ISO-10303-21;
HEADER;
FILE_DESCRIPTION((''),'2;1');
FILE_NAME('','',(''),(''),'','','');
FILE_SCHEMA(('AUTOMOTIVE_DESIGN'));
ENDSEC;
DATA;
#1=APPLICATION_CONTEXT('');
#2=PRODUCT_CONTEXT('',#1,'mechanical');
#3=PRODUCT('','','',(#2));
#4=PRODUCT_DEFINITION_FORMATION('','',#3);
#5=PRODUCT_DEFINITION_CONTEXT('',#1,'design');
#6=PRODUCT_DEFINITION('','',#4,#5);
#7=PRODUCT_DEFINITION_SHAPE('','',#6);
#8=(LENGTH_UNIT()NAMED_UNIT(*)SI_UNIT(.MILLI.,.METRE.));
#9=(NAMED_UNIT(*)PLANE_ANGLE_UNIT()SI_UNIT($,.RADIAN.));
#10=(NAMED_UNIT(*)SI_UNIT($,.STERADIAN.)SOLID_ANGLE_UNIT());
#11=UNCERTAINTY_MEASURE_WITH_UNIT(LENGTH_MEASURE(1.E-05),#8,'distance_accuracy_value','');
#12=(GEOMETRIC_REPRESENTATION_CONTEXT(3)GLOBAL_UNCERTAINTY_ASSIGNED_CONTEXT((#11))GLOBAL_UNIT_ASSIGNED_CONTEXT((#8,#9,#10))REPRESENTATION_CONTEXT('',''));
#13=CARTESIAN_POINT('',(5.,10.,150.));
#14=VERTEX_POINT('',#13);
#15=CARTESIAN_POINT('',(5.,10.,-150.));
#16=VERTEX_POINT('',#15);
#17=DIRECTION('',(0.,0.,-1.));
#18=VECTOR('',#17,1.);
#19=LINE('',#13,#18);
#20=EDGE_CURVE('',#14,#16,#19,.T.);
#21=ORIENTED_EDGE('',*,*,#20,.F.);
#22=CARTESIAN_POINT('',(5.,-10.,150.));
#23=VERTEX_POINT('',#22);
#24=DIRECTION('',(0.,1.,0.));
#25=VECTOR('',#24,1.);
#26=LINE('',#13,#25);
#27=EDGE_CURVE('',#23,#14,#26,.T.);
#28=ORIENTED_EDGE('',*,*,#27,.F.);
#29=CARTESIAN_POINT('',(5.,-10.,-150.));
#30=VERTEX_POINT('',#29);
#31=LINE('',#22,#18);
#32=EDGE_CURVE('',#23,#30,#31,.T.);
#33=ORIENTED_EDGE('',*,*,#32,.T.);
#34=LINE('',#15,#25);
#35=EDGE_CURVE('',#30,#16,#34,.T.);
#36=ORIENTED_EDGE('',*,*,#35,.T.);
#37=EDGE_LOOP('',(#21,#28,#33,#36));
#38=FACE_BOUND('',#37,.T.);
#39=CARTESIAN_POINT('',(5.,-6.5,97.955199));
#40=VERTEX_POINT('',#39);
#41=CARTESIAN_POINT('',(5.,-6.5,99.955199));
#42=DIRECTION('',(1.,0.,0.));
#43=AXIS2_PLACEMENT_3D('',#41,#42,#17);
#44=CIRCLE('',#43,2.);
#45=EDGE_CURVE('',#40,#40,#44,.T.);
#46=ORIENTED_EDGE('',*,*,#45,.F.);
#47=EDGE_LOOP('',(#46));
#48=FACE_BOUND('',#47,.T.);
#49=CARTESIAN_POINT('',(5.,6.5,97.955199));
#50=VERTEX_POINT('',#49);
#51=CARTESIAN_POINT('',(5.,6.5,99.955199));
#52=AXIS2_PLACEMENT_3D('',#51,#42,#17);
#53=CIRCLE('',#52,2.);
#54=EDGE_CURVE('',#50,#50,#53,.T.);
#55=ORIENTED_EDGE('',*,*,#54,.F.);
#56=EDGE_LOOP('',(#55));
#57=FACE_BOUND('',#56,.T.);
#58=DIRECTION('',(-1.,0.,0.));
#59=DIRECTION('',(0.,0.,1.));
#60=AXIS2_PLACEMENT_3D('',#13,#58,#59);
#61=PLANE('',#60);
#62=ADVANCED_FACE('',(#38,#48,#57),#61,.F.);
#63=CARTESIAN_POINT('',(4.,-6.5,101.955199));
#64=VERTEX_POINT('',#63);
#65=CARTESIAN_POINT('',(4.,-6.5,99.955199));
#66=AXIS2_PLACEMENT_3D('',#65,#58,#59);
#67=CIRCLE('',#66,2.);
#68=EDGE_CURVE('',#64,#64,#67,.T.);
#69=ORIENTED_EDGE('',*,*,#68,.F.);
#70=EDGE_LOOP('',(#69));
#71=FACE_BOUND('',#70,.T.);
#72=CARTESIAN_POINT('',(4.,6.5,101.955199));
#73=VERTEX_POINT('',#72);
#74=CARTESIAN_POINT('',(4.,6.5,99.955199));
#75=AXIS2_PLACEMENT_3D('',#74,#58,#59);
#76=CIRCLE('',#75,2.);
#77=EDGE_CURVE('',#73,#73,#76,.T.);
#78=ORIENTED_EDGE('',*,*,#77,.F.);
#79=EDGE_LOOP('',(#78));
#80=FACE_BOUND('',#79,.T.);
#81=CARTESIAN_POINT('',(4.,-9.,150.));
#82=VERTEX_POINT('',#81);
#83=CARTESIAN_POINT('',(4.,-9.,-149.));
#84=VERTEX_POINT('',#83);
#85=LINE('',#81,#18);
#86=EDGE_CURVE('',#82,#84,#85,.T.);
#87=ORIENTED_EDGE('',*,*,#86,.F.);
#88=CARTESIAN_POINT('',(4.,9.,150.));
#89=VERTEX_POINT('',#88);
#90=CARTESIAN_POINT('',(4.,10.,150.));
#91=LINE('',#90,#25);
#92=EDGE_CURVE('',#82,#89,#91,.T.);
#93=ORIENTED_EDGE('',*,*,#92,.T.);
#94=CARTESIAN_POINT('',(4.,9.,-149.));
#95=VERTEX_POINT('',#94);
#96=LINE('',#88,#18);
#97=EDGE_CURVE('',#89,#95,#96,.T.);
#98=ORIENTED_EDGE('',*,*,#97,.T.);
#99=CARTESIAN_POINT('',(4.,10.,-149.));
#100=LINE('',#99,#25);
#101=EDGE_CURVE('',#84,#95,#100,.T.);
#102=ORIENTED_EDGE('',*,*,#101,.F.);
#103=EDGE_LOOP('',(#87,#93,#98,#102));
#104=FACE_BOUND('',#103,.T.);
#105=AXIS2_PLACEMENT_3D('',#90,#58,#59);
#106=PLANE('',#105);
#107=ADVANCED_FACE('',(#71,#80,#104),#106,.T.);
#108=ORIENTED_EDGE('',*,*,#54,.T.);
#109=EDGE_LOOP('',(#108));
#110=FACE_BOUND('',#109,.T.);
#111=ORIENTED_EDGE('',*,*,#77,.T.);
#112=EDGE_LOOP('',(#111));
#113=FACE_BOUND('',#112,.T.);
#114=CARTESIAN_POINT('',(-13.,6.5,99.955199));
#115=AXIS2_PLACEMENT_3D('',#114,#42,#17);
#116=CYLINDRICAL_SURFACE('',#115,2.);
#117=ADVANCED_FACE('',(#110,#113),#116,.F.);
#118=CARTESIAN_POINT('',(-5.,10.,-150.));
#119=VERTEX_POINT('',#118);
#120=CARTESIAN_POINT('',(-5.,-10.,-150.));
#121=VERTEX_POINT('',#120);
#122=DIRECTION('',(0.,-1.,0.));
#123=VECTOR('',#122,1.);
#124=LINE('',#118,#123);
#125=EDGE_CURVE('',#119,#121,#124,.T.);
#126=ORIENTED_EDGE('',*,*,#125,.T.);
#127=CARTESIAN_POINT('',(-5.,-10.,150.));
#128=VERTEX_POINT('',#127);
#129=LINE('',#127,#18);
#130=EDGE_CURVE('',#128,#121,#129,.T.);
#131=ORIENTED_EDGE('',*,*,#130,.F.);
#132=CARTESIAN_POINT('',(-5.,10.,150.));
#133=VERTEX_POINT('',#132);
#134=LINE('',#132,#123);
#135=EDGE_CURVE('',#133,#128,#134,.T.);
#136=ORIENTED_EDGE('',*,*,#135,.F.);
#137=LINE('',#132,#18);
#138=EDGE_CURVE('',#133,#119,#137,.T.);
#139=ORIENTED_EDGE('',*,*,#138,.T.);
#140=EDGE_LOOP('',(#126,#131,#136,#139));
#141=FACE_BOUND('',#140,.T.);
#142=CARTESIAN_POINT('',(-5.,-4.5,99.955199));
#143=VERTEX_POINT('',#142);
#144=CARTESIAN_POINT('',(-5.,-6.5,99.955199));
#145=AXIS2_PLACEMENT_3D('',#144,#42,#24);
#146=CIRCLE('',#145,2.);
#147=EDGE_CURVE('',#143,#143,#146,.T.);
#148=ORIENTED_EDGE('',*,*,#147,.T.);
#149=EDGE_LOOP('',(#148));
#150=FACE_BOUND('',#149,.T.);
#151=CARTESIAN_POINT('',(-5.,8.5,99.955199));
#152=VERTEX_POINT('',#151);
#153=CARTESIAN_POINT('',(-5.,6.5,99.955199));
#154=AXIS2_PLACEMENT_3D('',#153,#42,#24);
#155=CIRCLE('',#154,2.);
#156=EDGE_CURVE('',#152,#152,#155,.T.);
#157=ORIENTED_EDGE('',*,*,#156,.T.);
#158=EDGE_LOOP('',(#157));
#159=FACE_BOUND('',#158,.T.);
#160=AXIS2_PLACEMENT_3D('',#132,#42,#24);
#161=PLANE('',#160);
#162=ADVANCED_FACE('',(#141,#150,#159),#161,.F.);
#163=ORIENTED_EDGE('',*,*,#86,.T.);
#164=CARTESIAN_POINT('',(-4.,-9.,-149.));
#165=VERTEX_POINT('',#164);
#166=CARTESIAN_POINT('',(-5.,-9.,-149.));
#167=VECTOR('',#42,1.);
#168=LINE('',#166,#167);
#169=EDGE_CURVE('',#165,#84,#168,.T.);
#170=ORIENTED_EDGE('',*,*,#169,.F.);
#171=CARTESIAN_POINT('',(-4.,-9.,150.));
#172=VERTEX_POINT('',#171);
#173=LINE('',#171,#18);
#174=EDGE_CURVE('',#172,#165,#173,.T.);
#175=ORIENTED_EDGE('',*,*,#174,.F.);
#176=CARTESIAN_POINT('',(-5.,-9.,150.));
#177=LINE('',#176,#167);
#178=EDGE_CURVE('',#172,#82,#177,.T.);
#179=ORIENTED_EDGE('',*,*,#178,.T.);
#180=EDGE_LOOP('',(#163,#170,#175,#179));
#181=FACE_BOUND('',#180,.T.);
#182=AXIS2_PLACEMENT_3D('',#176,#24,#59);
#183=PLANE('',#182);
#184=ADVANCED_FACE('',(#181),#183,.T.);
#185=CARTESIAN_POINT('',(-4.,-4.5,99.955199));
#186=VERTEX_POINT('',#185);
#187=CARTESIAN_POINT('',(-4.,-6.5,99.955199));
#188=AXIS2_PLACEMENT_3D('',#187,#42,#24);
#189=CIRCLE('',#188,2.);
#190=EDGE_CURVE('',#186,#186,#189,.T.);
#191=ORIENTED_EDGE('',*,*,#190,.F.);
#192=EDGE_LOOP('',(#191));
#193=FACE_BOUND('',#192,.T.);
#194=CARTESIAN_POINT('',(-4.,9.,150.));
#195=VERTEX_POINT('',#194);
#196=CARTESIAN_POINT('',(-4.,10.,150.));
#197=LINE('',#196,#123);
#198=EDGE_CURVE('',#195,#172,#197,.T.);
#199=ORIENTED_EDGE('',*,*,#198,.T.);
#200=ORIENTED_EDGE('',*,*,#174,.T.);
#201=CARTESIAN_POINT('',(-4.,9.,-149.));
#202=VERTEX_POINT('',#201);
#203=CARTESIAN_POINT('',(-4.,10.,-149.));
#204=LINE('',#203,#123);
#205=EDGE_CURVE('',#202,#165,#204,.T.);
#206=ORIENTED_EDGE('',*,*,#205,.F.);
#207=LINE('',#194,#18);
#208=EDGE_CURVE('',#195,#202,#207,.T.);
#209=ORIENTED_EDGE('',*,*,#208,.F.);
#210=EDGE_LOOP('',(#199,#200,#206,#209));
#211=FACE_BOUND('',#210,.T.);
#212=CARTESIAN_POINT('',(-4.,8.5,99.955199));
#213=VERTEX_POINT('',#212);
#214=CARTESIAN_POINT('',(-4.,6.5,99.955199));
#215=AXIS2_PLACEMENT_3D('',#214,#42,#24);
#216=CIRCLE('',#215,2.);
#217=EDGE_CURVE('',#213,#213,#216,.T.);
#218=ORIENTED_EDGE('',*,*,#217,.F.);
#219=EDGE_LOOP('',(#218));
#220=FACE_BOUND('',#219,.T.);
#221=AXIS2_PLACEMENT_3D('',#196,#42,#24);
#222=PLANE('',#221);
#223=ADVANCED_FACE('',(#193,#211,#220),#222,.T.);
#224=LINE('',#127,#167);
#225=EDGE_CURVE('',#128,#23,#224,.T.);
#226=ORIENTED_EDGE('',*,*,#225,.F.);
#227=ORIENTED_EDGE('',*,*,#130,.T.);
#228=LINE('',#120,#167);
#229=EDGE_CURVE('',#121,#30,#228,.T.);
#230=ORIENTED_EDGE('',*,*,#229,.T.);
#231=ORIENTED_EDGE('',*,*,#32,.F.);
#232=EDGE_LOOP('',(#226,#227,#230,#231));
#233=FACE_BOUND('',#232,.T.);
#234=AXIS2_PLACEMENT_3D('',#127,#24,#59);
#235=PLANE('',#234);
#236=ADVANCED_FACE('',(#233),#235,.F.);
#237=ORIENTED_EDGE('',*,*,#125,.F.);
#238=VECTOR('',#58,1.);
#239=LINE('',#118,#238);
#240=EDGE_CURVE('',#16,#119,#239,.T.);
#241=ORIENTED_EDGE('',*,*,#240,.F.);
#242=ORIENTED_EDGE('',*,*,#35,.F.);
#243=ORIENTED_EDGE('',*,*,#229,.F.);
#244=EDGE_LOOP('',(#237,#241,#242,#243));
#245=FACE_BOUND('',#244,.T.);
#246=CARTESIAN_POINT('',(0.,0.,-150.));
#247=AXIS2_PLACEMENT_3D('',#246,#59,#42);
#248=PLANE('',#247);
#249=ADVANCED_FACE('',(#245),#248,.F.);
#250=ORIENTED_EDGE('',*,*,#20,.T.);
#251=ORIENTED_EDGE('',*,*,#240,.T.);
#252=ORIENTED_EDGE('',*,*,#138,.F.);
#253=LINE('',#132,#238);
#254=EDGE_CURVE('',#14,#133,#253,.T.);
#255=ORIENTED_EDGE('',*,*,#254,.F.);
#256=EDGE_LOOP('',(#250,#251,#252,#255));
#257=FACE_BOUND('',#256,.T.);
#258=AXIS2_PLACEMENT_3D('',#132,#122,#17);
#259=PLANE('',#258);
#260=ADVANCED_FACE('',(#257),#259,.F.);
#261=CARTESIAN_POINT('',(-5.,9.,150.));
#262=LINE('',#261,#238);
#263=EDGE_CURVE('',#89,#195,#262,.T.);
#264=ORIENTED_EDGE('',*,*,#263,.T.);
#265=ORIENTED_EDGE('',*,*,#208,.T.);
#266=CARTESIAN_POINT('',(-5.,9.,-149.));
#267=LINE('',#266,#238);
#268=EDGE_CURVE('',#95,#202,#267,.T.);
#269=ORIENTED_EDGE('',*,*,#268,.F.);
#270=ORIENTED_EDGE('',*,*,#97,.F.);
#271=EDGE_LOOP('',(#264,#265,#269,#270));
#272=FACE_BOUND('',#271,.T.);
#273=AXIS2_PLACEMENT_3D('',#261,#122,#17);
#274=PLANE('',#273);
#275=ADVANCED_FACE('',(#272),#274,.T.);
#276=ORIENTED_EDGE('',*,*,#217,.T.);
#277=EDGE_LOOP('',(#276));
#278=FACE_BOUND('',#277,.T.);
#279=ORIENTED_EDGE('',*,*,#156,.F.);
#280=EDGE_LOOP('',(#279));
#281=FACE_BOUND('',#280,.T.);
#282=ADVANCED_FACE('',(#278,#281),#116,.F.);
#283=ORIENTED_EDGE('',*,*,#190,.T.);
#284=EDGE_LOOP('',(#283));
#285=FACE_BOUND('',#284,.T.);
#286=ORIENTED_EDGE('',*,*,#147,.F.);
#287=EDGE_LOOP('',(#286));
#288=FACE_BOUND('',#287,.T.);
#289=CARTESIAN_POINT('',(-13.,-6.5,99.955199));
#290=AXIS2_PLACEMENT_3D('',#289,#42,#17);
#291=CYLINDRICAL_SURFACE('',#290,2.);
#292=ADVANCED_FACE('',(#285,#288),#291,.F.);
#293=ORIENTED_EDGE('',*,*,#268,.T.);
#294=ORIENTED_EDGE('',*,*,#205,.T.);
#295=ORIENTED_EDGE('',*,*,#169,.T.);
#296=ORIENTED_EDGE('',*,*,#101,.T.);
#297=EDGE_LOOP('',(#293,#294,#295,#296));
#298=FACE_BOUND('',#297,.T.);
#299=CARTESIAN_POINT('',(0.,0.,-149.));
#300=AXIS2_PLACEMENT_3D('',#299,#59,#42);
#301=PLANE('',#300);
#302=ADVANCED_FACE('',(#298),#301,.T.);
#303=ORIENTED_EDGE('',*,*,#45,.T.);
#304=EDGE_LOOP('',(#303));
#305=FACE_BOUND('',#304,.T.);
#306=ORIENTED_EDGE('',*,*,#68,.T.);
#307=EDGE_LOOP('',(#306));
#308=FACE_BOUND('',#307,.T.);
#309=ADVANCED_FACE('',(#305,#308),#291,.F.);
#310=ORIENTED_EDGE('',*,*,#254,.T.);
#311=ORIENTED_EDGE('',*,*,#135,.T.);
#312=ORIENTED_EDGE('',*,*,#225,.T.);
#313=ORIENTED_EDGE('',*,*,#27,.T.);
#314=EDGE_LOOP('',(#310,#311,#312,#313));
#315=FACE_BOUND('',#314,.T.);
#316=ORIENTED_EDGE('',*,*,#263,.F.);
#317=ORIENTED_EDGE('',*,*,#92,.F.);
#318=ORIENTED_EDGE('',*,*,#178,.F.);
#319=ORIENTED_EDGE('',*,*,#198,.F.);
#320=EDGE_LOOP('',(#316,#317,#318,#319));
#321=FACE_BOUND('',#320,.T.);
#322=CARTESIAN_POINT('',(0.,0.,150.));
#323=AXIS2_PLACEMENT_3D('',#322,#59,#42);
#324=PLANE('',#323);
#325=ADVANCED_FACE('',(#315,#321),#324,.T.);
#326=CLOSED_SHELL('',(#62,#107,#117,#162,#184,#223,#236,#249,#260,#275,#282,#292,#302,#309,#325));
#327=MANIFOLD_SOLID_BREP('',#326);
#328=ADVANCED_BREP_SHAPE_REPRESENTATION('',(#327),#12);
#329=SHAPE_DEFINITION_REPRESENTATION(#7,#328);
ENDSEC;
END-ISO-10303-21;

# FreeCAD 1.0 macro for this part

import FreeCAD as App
import Part
import Sketcher
from FreeCAD import Vector


def faces_at(feature, points):
    """Names of the faces that lie closest to the given points."""
    faces = feature.Shape.Faces
    near = lambda p: min(range(len(faces)), key=lambda i: faces[i].distToShape(Part.Vertex(*p))[0])
    return sorted({f"Face{near(p) + 1}" for p in points})

doc = App.newDocument("Part")
body = doc.addObject("PartDesign::Body", "Body")

# Sketch on XY plane
sketch1 = doc.addObject("Sketcher::SketchObject", "Sketch")
body.addObject(sketch1)
sketch1.AttachmentSupport = (doc.XY_Plane, [""])
sketch1.MapMode = "FlatFace"
sketch1.addGeometry([
    Part.LineSegment(Vector(-5, 10, 0), Vector(-5, -10, 0)),
    Part.LineSegment(Vector(-5, -10, 0), Vector(5, -10, 0)),
    Part.LineSegment(Vector(5, -10, 0), Vector(5, 10, 0)),
    Part.LineSegment(Vector(5, 10, 0), Vector(-5, 10, 0)),
], False)
sketch1.addConstraint([
    Sketcher.Constraint("Coincident", 0, 2, 1, 1),
    Sketcher.Constraint("Coincident", 1, 2, 2, 1),
    Sketcher.Constraint("Coincident", 2, 2, 3, 1),
    Sketcher.Constraint("Coincident", 3, 2, 0, 1),
    Sketcher.Constraint("Vertical", 0),
    Sketcher.Constraint("Horizontal", 1),
    Sketcher.Constraint("Vertical", 2),
    Sketcher.Constraint("Horizontal", 3),
    Sketcher.Constraint("Symmetric", 0, 2, 2, 2, -1, 1),
    Sketcher.Constraint("DistanceX", 1, 1, 1, 2, 10.0),
    Sketcher.Constraint("DistanceY", 0, 2, 0, 1, 20.0),
])
pad1 = doc.addObject("PartDesign::Pad", "Pad")
body.addObject(pad1)
pad1.Profile = sketch1
pad1.Length = 300
pad1.Midplane = True
doc.recompute()

thickness = doc.addObject("PartDesign::Thickness", "Thickness")
body.addObject(thickness)
thickness.Base = (pad1, faces_at(pad1, [(0, 0, 150)]))
thickness.Value = 1
thickness.Reversed = True
thickness.Join = "Intersection"

# Sketch on YZ plane
sketch2 = doc.addObject("Sketcher::SketchObject", "Sketch001")
body.addObject(sketch2)
sketch2.AttachmentSupport = (doc.YZ_Plane, [""])
sketch2.MapMode = "FlatFace"
sketch2.AttachmentOffset = App.Placement(Vector(0, 0, 5), App.Rotation())
sketch2.addGeometry([
    Part.Circle(Vector(6.5, 99.955199, 0), Vector(0, 0, 1), 2),
    Part.Circle(Vector(-6.5, 99.955199, 0), Vector(0, 0, 1), 2),
], False)
sketch2.addConstraint([
    Sketcher.Constraint("Equal", 0, 1),
    Sketcher.Constraint("Symmetric", 0, 3, 1, 3, -2),
    Sketcher.Constraint("Diameter", 0, 4.0),
    Sketcher.Constraint("DistanceX", 1, 3, 0, 3, 13.0),
    Sketcher.Constraint("DistanceY", -1, 1, 0, 3, 99.955199),
])
pocket1 = doc.addObject("PartDesign::Pocket", "Pocket")
body.addObject(pocket1)
pocket1.Profile = sketch2
pocket1.Length = 18

doc.recompute()
